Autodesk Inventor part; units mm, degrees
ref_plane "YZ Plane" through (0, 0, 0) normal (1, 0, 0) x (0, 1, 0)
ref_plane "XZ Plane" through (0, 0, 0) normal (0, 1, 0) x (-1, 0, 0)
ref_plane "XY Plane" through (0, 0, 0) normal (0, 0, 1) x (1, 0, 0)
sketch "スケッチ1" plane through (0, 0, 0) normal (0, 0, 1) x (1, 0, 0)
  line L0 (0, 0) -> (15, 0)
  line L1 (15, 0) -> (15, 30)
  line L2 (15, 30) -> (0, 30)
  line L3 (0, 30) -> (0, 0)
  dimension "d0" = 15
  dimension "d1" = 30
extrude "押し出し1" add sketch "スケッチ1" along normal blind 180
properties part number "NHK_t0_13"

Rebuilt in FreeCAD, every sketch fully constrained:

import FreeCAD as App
import Part
import Sketcher
from FreeCAD import Vector
Q = App.Units.Quantity

doc = App.newDocument("Part")
body = doc.addObject("PartDesign::Body", "Body")

sketch1 = body.newObject("Sketcher::SketchObject", "Sketch")
sketch1.AttachmentSupport = (doc.getObject("XY_Plane"), [""])
sketch1.MapMode = "FlatFace"
sketch1.addGeometry([
    Part.LineSegment(Vector(0, 30, 0), Vector(0, 0, 0)),
    Part.LineSegment(Vector(0, 0, 0), Vector(15, 0, 0)),
    Part.LineSegment(Vector(15, 0, 0), Vector(15, 30, 0)),
    Part.LineSegment(Vector(15, 30, 0), Vector(0, 30, 0)),
], False)
sketch1.addConstraint([
    Sketcher.Constraint("Coincident", 0, 2, 1, 1),
    Sketcher.Constraint("Coincident", 1, 2, 2, 1),
    Sketcher.Constraint("Coincident", 2, 2, 3, 1),
    Sketcher.Constraint("Coincident", 3, 2, 0, 1),
    Sketcher.Constraint("Vertical", 0),
    Sketcher.Constraint("Horizontal", 1),
    Sketcher.Constraint("Vertical", 2),
    Sketcher.Constraint("Horizontal", 3),
    Sketcher.Constraint("Coincident", 0, 2, -1, 1),
    Sketcher.Constraint("DistanceX", 1, 1, 1, 2, Q("15 mm")),
    Sketcher.Constraint("DistanceY", 0, 2, 0, 1, Q("30 mm")),
])
pad1 = body.newObject("PartDesign::Pad", "Pad")
pad1.Profile = sketch1
pad1.Length = 180

doc.recompute()
